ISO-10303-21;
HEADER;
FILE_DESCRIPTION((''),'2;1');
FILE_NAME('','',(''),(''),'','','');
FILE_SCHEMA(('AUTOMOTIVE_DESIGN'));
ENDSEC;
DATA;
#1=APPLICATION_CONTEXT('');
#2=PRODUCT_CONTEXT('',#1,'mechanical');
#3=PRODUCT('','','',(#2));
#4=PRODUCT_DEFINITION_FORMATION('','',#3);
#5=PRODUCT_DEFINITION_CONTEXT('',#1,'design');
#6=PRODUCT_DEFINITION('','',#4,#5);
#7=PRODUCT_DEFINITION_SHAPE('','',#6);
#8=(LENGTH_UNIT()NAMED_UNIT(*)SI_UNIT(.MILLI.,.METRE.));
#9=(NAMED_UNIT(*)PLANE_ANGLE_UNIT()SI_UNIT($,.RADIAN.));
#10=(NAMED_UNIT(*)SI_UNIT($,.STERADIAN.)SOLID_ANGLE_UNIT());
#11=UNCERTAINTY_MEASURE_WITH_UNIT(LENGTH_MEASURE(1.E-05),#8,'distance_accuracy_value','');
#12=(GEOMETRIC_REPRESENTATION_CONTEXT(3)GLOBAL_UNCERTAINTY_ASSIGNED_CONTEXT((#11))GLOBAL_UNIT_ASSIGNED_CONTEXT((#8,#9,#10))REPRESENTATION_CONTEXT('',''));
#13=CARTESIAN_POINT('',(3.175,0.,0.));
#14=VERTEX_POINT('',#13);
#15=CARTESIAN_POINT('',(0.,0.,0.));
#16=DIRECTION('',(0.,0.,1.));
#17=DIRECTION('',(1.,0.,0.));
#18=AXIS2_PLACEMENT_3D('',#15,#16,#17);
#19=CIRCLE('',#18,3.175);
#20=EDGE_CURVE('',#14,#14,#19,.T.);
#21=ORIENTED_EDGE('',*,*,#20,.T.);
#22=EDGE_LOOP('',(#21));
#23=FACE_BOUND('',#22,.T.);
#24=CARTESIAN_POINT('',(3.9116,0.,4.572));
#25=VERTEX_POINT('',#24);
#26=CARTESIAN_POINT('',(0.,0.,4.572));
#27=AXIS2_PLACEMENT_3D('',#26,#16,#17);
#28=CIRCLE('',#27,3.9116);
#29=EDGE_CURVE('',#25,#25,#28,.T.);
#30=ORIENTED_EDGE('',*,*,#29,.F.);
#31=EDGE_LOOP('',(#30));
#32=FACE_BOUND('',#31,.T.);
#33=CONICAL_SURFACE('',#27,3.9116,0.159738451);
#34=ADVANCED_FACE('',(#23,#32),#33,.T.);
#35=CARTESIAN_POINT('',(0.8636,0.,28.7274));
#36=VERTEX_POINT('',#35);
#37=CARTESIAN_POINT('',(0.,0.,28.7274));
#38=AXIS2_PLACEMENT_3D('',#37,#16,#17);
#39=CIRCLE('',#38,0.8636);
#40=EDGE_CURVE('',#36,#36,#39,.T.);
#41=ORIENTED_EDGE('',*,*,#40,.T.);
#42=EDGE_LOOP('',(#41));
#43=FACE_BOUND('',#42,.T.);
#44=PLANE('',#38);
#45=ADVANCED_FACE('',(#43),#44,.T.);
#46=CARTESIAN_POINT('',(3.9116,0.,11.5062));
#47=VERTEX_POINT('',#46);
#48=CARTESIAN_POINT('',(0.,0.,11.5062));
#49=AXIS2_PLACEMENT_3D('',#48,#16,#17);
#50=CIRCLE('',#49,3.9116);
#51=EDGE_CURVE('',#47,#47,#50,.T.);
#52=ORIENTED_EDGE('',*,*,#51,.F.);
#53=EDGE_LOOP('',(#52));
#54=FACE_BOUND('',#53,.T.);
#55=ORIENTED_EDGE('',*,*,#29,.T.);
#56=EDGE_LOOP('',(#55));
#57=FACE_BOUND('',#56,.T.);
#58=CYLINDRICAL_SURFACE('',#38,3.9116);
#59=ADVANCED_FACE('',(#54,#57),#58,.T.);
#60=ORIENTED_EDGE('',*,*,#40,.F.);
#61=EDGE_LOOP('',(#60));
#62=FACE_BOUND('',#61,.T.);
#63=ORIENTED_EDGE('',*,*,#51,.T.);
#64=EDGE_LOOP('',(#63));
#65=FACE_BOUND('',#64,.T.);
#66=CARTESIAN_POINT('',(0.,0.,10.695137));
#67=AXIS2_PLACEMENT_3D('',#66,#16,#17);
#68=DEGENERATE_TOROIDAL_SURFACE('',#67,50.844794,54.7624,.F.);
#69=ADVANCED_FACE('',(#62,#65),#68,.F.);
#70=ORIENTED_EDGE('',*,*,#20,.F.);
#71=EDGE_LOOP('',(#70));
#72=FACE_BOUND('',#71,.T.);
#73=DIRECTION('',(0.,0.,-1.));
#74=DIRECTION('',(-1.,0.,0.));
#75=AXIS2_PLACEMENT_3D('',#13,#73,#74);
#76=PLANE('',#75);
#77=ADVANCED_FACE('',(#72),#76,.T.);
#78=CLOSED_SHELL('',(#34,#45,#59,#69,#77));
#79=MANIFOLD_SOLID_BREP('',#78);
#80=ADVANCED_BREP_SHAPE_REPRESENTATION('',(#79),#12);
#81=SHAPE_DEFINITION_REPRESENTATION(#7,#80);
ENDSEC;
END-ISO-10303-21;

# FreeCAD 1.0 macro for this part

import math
import FreeCAD as App
import Part
import Sketcher
from FreeCAD import Vector
Q = App.Units.Quantity

doc = App.newDocument("Part")
body = doc.addObject("PartDesign::Body", "Body")

sketch1 = doc.addObject("Sketcher::SketchObject", "Sketch")
body.addObject(sketch1)
sketch1.AttachmentSupport = (doc.XZ_Plane, [""])
sketch1.MapMode = "FlatFace"
sketch1.addGeometry(Part.LineSegment(Vector(3.9116, 4.572, 0), Vector(3.175, 0, 0)), False)
sketch1.addGeometry(Part.LineSegment(Vector(3.175, 0, 0), Vector(0, 0, 0)), False)
sketch1.addGeometry(Part.LineSegment(Vector(0, 0, 0), Vector(0, 28.7274, 0)), False)
sketch1.addGeometry(Part.LineSegment(Vector(0, 28.7274, 0), Vector(0.8636, 28.7274, 0)), False)
sketch1.addGeometry(Part.ArcOfCircle(Part.Circle(Vector(-50.844793, 10.695137, 0), Vector(0, 0, 1), 54.7624), math.radians(0.848614), math.radians(19.225191)), False)
sketch1.addGeometry(Part.LineSegment(Vector(3.9116, 11.5062, 0), Vector(3.9116, 4.572, 0)), False)
sketch1.addConstraint(Sketcher.Constraint("Coincident", 0, 2, 1, 1))
sketch1.addConstraint(Sketcher.Constraint("Coincident", 1, 2, 2, 1))
sketch1.addConstraint(Sketcher.Constraint("Coincident", 2, 2, 3, 1))
sketch1.addConstraint(Sketcher.Constraint("Coincident", 3, 2, 4, 2))
sketch1.addConstraint(Sketcher.Constraint("Coincident", 4, 1, 5, 1))
sketch1.addConstraint(Sketcher.Constraint("Coincident", 5, 2, 0, 1))
sketch1.addConstraint(Sketcher.Constraint("Horizontal", 1))
sketch1.addConstraint(Sketcher.Constraint("Vertical", 2))
sketch1.addConstraint(Sketcher.Constraint("Horizontal", 3))
sketch1.addConstraint(Sketcher.Constraint("Vertical", 5))
sketch1.addConstraint(Sketcher.Constraint("Coincident", 1, 2, -1, 1))
sketch1.addConstraint(Sketcher.Constraint("Radius", 4, Q("2.156 in")))
sketch1.addConstraint(Sketcher.Constraint("DistanceX", 1, 2, 1, 1, Q("0.125 in")))
sketch1.addConstraint(Sketcher.Constraint("DistanceX", 3, 1, 3, 2, Q("0.034 in")))
sketch1.addConstraint(Sketcher.Constraint("DistanceY", 2, 1, 2, 2, Q("1.131 in")))
sketch1.addConstraint(Sketcher.Constraint("DistanceY", 5, 2, 5, 1, Q("0.273 in")))
sketch1.addConstraint(Sketcher.Constraint("DistanceY", -1, 1, 5, 2, Q("0.18 in")))
sketch1.addConstraint(Sketcher.Constraint("DistanceX", 3, 2, 4, 1, Q("0.12 in")))
revolution = doc.addObject("PartDesign::Revolution", "Revolution")
body.addObject(revolution)
revolution.Profile = sketch1
revolution.ReferenceAxis = (sketch1, ["V_Axis"])
revolution.Angle = 360

doc.recompute()
